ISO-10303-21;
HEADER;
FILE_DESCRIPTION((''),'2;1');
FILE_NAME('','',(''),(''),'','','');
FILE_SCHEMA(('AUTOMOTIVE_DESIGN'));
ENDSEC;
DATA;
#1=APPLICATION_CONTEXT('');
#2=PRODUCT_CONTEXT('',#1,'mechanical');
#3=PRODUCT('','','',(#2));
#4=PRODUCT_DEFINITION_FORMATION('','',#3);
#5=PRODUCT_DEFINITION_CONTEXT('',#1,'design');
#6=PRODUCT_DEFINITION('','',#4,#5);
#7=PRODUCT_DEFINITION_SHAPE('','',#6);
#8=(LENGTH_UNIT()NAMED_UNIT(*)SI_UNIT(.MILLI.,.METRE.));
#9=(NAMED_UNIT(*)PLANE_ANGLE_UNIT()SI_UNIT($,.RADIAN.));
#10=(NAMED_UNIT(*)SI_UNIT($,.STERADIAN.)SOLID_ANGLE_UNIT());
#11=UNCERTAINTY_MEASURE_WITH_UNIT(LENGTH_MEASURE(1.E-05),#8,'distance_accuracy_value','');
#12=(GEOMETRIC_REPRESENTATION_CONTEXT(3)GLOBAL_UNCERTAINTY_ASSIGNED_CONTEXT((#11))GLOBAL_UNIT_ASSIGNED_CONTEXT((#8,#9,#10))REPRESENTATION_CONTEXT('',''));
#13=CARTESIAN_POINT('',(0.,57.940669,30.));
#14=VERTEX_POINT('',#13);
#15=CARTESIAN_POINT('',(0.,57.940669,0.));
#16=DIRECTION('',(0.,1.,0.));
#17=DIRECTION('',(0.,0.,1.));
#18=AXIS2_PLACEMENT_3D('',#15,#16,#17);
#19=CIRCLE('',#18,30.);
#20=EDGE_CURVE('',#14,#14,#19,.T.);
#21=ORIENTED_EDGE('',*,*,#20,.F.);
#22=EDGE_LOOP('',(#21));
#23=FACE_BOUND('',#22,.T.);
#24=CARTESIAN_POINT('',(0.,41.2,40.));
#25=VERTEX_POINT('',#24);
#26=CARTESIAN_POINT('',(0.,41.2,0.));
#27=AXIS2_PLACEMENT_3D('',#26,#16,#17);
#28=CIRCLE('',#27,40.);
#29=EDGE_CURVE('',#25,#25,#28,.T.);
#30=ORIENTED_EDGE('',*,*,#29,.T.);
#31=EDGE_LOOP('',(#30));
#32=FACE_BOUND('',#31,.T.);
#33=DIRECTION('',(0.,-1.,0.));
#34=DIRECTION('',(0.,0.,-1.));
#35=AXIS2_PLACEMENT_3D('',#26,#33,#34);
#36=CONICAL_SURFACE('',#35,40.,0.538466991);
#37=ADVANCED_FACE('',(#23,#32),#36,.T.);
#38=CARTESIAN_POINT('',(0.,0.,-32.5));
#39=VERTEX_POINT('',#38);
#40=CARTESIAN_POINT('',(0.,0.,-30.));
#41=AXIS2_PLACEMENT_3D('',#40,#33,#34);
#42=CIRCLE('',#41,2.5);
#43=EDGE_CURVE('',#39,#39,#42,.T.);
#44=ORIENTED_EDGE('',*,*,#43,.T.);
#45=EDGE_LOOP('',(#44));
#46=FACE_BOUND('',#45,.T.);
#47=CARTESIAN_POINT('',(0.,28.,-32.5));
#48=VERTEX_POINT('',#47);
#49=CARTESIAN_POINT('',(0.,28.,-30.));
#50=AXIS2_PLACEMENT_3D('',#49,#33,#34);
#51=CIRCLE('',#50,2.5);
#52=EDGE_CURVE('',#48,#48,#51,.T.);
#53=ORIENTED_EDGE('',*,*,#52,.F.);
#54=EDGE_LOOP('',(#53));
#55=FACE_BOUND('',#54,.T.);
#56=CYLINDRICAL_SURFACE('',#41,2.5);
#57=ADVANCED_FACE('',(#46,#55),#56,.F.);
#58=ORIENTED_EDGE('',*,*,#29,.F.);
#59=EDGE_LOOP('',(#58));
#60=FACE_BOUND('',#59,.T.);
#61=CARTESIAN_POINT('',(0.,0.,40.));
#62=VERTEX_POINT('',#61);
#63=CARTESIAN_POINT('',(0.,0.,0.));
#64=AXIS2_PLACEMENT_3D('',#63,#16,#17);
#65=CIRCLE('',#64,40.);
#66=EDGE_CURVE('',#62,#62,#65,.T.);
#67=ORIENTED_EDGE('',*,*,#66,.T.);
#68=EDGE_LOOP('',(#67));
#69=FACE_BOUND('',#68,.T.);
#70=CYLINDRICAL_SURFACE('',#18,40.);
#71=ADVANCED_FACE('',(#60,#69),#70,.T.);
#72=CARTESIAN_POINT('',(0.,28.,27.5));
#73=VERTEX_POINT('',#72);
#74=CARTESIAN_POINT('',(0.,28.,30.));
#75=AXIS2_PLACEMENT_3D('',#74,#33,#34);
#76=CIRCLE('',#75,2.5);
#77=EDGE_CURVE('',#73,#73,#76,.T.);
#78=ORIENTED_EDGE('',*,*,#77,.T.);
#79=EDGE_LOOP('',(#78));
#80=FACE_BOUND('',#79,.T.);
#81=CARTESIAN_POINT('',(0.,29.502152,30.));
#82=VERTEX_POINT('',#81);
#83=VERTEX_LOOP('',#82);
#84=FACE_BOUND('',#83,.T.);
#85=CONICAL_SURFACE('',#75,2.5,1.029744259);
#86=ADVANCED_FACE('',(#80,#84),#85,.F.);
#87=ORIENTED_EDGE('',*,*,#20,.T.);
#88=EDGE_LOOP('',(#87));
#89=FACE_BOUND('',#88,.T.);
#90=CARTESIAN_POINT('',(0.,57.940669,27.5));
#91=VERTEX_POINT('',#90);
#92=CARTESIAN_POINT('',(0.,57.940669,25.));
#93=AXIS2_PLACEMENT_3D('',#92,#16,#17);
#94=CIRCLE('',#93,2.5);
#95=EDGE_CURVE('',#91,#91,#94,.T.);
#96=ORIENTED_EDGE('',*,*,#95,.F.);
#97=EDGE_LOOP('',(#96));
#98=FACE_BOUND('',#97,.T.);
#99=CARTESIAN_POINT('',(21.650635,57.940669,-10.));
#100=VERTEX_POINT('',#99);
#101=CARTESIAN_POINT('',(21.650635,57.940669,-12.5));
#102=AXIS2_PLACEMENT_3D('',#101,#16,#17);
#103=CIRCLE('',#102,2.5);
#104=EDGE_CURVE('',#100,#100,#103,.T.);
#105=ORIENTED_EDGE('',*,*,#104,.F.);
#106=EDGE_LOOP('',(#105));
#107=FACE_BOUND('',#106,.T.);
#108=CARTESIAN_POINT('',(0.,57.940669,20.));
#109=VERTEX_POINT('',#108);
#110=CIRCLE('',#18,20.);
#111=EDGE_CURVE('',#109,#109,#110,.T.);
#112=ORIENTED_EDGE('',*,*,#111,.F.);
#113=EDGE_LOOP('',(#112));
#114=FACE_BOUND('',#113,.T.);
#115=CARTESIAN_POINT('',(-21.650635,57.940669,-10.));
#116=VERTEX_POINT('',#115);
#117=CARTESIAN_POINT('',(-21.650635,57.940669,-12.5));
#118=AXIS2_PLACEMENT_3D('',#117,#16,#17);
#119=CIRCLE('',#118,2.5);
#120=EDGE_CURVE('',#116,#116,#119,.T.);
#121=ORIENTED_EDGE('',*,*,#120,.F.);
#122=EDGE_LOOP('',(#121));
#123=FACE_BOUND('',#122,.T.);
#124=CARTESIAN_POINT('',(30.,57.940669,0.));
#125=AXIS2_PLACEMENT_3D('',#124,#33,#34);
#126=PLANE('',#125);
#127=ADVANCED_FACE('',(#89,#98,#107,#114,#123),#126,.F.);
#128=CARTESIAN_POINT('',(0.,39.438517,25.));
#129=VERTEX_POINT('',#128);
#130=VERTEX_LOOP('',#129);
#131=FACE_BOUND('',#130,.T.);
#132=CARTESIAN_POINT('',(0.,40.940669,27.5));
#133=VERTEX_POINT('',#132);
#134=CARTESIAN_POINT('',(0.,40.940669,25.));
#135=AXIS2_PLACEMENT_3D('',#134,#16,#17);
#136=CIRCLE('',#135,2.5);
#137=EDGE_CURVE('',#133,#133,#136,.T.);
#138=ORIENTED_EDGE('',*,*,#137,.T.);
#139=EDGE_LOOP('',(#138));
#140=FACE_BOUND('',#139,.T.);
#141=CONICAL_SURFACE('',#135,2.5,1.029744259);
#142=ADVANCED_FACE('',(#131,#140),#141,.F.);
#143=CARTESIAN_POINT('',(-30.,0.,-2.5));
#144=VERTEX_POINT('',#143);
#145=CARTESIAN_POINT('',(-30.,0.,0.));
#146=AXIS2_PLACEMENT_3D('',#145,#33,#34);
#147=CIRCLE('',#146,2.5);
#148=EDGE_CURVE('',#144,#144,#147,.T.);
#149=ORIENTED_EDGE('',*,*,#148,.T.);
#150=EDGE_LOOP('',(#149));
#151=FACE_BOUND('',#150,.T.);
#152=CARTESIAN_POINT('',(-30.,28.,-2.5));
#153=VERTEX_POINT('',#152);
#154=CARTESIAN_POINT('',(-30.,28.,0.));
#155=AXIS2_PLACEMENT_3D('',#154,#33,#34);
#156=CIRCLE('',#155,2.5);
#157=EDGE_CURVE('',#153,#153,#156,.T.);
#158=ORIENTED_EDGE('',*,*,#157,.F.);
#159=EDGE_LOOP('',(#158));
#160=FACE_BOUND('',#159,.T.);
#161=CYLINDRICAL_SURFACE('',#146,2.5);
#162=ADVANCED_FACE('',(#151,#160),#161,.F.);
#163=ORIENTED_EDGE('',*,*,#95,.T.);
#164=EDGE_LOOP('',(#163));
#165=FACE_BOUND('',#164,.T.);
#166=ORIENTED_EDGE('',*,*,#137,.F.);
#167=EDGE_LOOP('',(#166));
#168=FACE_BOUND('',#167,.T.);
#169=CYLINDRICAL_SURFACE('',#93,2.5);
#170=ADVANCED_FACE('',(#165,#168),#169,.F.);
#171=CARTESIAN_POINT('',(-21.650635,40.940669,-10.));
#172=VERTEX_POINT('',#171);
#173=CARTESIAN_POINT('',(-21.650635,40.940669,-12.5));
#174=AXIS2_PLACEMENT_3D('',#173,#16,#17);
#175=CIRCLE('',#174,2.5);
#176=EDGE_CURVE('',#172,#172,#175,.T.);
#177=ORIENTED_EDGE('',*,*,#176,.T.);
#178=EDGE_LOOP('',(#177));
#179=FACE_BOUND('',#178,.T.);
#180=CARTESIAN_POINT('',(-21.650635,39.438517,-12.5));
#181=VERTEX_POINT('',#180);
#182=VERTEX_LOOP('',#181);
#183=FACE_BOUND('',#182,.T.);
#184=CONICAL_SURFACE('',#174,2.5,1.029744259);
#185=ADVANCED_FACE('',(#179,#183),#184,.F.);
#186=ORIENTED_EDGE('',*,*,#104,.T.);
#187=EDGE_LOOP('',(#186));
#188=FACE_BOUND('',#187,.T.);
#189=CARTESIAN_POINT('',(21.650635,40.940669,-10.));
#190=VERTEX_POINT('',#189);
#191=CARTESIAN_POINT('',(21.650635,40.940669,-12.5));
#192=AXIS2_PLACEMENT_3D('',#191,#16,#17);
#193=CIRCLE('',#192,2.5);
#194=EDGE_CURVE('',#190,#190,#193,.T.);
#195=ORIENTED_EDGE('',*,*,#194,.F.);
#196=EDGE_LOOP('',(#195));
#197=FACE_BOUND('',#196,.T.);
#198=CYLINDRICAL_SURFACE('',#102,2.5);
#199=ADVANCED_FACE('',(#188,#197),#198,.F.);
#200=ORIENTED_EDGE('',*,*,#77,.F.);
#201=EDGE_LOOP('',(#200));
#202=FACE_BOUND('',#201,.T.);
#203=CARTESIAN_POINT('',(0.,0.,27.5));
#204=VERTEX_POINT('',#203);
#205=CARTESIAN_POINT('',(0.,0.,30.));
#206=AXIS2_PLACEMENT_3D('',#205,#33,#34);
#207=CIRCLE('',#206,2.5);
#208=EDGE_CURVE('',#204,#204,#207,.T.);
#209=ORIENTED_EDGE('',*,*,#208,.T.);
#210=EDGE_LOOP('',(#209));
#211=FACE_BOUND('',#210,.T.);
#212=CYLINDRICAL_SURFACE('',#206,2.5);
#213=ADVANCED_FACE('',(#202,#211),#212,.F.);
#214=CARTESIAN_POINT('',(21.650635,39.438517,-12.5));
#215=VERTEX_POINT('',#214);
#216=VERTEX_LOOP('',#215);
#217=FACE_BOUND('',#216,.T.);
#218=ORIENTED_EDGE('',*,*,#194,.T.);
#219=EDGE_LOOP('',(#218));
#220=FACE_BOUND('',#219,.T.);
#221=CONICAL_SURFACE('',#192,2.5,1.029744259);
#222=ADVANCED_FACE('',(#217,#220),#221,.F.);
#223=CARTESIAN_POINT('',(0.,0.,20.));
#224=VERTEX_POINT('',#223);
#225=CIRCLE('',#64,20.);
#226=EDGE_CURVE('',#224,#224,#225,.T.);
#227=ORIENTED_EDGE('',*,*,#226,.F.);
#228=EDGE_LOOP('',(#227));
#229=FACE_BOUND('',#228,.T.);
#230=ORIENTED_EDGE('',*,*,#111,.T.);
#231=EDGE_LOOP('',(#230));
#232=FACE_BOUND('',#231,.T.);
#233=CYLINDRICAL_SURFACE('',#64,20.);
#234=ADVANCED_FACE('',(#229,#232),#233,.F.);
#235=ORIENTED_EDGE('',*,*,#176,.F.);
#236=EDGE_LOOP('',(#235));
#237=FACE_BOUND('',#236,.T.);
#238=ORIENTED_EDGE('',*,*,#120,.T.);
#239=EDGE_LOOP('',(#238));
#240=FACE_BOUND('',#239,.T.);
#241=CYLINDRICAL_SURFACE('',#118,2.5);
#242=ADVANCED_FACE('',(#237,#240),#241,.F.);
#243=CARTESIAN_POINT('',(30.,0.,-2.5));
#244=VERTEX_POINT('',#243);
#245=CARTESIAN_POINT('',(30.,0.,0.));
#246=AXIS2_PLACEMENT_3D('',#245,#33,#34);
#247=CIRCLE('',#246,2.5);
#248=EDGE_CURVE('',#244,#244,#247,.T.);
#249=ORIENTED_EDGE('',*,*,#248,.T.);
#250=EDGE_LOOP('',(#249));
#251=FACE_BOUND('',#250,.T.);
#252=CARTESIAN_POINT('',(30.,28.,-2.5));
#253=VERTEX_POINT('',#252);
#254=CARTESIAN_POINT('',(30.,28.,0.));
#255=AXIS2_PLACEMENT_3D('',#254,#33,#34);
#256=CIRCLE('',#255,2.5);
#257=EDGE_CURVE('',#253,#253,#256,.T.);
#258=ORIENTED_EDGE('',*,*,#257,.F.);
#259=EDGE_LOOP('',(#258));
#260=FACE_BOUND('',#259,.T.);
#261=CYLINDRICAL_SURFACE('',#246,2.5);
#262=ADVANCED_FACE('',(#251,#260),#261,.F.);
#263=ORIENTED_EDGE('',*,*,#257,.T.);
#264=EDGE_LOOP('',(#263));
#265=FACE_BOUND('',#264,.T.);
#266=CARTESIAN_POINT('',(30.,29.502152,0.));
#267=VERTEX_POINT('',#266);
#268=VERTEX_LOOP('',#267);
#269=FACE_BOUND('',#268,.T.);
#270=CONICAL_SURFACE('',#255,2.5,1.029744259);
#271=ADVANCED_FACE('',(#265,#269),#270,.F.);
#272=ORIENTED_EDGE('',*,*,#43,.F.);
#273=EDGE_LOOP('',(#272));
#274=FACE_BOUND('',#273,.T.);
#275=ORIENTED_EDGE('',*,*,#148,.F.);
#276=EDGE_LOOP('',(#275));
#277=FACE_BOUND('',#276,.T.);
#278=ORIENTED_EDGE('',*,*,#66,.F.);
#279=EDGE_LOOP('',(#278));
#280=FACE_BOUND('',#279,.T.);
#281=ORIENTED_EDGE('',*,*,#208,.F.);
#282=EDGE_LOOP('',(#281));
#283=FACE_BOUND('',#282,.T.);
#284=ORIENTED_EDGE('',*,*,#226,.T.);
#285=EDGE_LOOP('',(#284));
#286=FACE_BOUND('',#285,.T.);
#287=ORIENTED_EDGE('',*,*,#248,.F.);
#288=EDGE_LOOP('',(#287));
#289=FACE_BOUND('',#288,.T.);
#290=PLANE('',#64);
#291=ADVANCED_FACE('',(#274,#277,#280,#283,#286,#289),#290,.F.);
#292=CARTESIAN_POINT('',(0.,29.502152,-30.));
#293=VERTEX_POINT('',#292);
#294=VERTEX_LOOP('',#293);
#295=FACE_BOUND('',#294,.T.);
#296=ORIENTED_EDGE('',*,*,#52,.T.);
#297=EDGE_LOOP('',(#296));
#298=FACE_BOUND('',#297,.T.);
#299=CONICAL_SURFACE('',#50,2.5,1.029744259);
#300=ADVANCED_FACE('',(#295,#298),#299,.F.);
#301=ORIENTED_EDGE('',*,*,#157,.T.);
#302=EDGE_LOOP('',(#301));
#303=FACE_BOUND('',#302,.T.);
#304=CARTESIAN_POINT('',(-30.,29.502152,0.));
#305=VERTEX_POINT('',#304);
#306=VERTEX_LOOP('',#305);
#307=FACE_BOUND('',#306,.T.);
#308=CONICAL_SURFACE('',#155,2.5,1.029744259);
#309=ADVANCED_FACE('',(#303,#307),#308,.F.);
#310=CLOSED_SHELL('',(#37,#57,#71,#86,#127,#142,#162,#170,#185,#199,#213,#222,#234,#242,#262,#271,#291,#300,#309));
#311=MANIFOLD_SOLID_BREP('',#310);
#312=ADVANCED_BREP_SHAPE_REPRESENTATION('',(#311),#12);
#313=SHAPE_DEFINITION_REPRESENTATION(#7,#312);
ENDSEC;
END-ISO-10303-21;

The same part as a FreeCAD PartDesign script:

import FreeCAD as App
import Part
import Sketcher
Q = App.Units.Quantity


def add_polygon(sketch, points):
    """Adds a closed chain of lines whose ends are joined by coincident constraints."""
    first, n = sketch.GeometryCount, len(points)
    for a, b in zip(points, points[1:] + points[:1]):
        sketch.addGeometry(Part.LineSegment(App.Vector(*a, 0), App.Vector(*b, 0)), False)
    for i in range(n):
        sketch.addConstraint(Sketcher.Constraint("Coincident", first + i, 2, first + (i + 1) % n, 1))

doc = App.newDocument("Part")
params = doc.addObject("Spreadsheet::Sheet", "Params")
for row, (alias, value) in enumerate([
    ("sketch1_width", "40 mm"),
    ("sketch1_width2", "30 mm"),
    ("sketch1_height", "41.2 mm"),
    ("sketch1_length", "19.5 mm"),
    ("revolution_angle", "360 deg"),
    ("sketch2_diameter", "40 mm"),
    ("sketch3_diameter", "5 mm"),
    ("hole_diameter", "5 mm"),
    ("hole_depth", "17 mm"),
    ("sketch4_diameter", "5 mm"),
    ("hole2_diameter", "5 mm"),
    ("hole2_depth", "28 mm"),
], start=1):
    params.set(f"A{row}", alias)
    params.set(f"B{row}", "=" + value)
    params.setAlias(f"B{row}", alias)

body = doc.addObject("PartDesign::Body", "Body")

sketch1 = body.newObject("Sketcher::SketchObject", "Sketch")
sketch1.AttachmentSupport = (doc.getObject("XY_Plane"), [""])
sketch1.MapMode = "FlatFace"
add_polygon(sketch1, [(0, 0), (40, 0), (40, 41), (30, 58), (0, 58)])
sketch1.addConstraint([
    Sketcher.Constraint("Horizontal", 0),
    Sketcher.Constraint("Vertical", 1),
    Sketcher.Constraint("Horizontal", 3),
    Sketcher.Constraint("Vertical", 4),
    Sketcher.Constraint("Coincident", 4, 2, -1, 1),
    Sketcher.Constraint("DistanceX", 0, 1, 0, 2, Q("40 mm")),
    Sketcher.Constraint("DistanceX", 3, 2, 3, 1, Q("30 mm")),
    Sketcher.Constraint("DistanceY", 1, 1, 1, 2, Q("41.2 mm")),
    Sketcher.Constraint("Distance", 2, Q("19.5 mm")),
])
sketch1.setExpression("Constraints[10]", "Params.sketch1_width")
sketch1.setExpression("Constraints[11]", "Params.sketch1_width2")
sketch1.setExpression("Constraints[12]", "Params.sketch1_height")
sketch1.setExpression("Constraints[13]", "Params.sketch1_length")
revolution = body.newObject("PartDesign::Revolution", "Revolution")
revolution.Profile = sketch1
revolution.ReferenceAxis = (sketch1, ["V_Axis"])
revolution.setExpression("Angle", "Params.revolution_angle")

sketch2 = body.newObject("Sketcher::SketchObject", "Sketch001")
sketch2.AttachmentSupport = (doc.getObject("XZ_Plane"), [""])
sketch2.MapMode = "FlatFace"
sketch2.AttachmentOffset = App.Placement(App.Vector(0, 0, -57.940669), App.Rotation())
sketch2.addGeometry(Part.Circle(App.Vector(0, 0, 0), App.Vector(0, 0, 1), 20), False)
sketch2.addConstraint([
    Sketcher.Constraint("Coincident", 0, 3, -1, 1),
    Sketcher.Constraint("Diameter", 0, Q("40 mm")),
])
sketch2.setExpression("Constraints[1]", "Params.sketch2_diameter")
pocket1 = body.newObject("PartDesign::Pocket", "Pocket")
pocket1.Profile = sketch2
pocket1.Type = "ThroughAll"
pocket1.Reversed = True

sketch3 = body.newObject("Sketcher::SketchObject", "Sketch002")
sketch3.AttachmentSupport = (doc.getObject("XZ_Plane"), [""])
sketch3.MapMode = "FlatFace"
sketch3.AttachmentOffset = App.Placement(App.Vector(0, 0, -57.940669), App.Rotation())
sketch3.addGeometry([
    Part.Circle(App.Vector(-21.7, -12.5, 0), App.Vector(0, 0, 1), 2.5),
    Part.Circle(App.Vector(21.7, -12.5, 0), App.Vector(0, 0, 1), 2.5),
    Part.Circle(App.Vector(0, 25, 0), App.Vector(0, 0, 1), 2.5),
], False)
sketch3.addConstraint([
    Sketcher.Constraint("Equal", 0, 1),
    Sketcher.Constraint("Equal", 1, 2),
    Sketcher.Constraint("Symmetric", 0, 3, 1, 3, -2),
    Sketcher.Constraint("PointOnObject", 2, 3, -2),
    Sketcher.Constraint("Diameter", 0, Q("5 mm")),
    Sketcher.Constraint("DistanceY", -1, 1, 2, 3, Q("25 mm")),
    Sketcher.Constraint("DistanceY", 0, 3, -1, 1, Q("12.5 mm")),
    Sketcher.Constraint("DistanceX", 0, 3, 1, 3, Q("43.30127 mm")),
])
sketch3.setExpression("Constraints[4]", "Params.sketch3_diameter")
doc.recompute()
hole = body.newObject("PartDesign::Hole", "Hole")
hole.Profile = sketch3
hole.ThreadType = "None"
hole.setExpression("Diameter", "Params.hole_diameter")
hole.DepthType = "Dimension"
hole.setExpression("Depth", "Params.hole_depth")
hole.DrillPoint = "Angled"
hole.DrillPointAngle = 118
hole.Reversed = True

sketch4 = body.newObject("Sketcher::SketchObject", "Sketch003")
sketch4.AttachmentSupport = (doc.getObject("XZ_Plane"), [""])
sketch4.MapMode = "FlatFace"
sketch4.addGeometry([
    Part.Circle(App.Vector(0, 30, 0), App.Vector(0, 0, 1), 2.5),
    Part.Circle(App.Vector(30, 0, 0), App.Vector(0, 0, 1), 2.5),
    Part.Circle(App.Vector(0, -30, 0), App.Vector(0, 0, 1), 2.5),
    Part.Circle(App.Vector(-30, 0, 0), App.Vector(0, 0, 1), 2.5),
], False)
sketch4.addConstraint([
    Sketcher.Constraint("Equal", 0, 1),
    Sketcher.Constraint("Equal", 1, 2),
    Sketcher.Constraint("Equal", 2, 3),
    Sketcher.Constraint("Symmetric", 0, 3, 2, 3, -1, 1),
    Sketcher.Constraint("Symmetric", 1, 3, 3, 3, -1, 1),
    Sketcher.Constraint("PointOnObject", 0, 3, -2),
    Sketcher.Constraint("PointOnObject", 1, 3, -1),
    Sketcher.Constraint("Diameter", 0, Q("5 mm")),
    Sketcher.Constraint("DistanceY", -1, 1, 0, 3, Q("30 mm")),
    Sketcher.Constraint("DistanceX", -1, 1, 1, 3, Q("30 mm")),
])
sketch4.setExpression("Constraints[7]", "Params.sketch4_diameter")
doc.recompute()
hole2 = body.newObject("PartDesign::Hole", "Hole001")
hole2.Profile = sketch4
hole2.ThreadType = "None"
hole2.setExpression("Diameter", "Params.hole2_diameter")
hole2.DepthType = "Dimension"
hole2.setExpression("Depth", "Params.hole2_depth")
hole2.DrillPoint = "Angled"
hole2.DrillPointAngle = 118

doc.recompute()
